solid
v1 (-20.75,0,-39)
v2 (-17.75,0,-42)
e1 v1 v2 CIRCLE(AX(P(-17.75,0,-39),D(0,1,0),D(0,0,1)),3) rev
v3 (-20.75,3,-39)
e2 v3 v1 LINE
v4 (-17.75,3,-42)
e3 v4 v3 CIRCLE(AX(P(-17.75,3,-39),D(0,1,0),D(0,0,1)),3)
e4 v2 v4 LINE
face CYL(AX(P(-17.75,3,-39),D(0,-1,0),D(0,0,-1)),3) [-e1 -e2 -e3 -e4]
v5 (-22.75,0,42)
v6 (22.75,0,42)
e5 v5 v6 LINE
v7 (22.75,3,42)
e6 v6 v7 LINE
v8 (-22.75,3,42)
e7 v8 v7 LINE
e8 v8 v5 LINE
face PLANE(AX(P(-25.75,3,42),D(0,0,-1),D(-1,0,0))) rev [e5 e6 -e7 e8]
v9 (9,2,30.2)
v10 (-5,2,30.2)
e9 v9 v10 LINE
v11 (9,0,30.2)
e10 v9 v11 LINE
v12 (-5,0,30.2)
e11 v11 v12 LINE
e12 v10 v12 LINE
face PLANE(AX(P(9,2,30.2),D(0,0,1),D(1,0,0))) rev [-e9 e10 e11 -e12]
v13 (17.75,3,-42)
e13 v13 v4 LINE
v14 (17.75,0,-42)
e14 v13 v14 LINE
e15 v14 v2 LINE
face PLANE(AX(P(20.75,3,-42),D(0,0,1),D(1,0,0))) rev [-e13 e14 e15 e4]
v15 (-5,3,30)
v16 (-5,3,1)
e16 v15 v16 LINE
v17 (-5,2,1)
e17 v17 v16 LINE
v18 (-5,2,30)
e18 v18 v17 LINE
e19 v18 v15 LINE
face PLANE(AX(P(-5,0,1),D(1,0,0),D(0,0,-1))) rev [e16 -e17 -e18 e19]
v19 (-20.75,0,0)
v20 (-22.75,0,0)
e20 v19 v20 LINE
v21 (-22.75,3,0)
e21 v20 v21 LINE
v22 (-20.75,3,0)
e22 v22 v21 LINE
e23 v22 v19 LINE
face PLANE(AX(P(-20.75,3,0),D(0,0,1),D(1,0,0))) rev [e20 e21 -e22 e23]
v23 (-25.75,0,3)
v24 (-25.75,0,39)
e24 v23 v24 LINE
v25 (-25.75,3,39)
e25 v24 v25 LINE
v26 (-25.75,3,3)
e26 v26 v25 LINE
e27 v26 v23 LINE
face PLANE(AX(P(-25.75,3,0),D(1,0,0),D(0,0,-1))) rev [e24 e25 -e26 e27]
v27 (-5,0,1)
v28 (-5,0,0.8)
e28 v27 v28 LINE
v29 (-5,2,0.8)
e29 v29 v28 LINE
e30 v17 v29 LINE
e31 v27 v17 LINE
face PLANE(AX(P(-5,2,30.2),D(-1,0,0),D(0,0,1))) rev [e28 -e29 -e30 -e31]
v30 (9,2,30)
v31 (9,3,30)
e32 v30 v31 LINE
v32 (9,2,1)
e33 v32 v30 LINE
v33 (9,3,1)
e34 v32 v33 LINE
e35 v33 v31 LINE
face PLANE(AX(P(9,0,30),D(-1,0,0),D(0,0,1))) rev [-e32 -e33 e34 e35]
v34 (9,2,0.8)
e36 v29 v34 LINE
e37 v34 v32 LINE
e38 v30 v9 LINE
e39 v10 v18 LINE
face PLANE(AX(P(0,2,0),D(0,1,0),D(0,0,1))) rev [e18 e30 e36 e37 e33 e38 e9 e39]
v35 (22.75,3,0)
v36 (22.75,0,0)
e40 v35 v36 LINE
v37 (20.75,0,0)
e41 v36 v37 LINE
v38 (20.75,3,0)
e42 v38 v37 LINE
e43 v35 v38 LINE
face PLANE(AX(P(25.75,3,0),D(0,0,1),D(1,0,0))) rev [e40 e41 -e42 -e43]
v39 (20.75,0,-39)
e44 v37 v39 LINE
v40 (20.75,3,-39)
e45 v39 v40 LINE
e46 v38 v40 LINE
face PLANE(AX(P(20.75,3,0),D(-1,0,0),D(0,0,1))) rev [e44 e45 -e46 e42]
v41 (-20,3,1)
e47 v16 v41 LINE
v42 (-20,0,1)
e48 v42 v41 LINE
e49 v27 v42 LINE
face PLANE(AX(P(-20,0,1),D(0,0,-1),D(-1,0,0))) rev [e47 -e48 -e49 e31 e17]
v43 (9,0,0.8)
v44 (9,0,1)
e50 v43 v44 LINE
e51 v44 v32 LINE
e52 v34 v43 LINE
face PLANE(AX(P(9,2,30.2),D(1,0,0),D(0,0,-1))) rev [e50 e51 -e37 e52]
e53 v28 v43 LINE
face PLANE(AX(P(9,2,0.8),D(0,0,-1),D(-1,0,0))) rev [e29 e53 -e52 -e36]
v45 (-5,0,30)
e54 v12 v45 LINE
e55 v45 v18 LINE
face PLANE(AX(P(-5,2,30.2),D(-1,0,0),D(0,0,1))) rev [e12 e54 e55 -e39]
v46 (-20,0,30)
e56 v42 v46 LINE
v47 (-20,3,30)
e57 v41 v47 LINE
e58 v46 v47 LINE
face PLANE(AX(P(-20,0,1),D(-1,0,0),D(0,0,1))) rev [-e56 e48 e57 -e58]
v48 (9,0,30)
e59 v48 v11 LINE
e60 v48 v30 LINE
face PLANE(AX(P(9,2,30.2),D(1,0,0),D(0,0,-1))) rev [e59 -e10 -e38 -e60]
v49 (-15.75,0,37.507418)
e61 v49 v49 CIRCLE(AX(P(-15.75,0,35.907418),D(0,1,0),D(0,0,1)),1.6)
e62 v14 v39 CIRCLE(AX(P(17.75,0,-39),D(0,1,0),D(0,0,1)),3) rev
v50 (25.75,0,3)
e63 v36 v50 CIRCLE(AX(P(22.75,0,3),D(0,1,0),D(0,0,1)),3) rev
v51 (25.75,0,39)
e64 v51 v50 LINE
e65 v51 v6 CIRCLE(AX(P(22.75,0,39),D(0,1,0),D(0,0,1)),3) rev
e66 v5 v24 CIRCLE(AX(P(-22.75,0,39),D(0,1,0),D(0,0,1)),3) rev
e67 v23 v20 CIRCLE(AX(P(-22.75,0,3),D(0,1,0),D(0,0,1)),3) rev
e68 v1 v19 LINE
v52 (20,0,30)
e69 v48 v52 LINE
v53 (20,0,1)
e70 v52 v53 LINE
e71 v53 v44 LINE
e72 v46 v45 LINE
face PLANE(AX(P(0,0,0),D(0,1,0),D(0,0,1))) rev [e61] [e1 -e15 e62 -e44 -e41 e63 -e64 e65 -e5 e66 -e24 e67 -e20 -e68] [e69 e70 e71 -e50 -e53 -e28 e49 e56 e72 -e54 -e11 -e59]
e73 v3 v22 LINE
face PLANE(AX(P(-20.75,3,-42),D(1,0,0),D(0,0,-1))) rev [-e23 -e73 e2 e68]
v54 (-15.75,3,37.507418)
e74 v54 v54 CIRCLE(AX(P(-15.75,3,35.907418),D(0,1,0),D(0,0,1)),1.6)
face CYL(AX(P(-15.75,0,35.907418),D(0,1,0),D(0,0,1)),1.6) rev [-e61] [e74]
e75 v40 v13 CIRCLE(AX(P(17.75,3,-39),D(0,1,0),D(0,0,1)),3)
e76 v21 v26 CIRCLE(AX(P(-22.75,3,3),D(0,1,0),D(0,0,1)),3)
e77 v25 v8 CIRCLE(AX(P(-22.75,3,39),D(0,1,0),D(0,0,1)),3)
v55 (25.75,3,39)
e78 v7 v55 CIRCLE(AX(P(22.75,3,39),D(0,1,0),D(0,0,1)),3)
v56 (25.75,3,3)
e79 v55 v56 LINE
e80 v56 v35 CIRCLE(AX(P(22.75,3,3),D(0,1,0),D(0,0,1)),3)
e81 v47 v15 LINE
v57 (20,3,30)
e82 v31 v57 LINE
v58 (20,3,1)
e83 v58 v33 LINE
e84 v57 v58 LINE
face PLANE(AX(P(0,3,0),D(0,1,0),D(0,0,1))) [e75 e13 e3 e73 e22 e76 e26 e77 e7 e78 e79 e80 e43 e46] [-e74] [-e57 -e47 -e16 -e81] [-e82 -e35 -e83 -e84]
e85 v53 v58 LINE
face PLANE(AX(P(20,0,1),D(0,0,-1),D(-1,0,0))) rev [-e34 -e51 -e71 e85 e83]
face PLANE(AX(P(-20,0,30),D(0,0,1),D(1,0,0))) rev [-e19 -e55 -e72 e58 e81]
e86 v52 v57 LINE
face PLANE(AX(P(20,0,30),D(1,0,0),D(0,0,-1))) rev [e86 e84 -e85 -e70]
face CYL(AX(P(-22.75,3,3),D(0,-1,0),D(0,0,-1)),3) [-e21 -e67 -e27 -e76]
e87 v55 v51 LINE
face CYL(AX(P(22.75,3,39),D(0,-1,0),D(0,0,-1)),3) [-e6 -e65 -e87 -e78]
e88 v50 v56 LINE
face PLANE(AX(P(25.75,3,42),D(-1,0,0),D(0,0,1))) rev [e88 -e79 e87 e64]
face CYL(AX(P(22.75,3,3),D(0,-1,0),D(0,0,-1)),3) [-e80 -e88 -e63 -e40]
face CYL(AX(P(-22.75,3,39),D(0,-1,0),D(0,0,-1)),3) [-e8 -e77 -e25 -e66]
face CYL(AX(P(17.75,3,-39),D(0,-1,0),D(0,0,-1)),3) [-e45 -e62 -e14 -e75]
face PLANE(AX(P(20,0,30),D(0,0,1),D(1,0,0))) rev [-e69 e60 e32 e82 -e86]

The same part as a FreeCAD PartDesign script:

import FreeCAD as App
import Part
import Sketcher


def edges_at(feature, points):
    """Names of the edges that pass closest to the given points."""
    edges = feature.Shape.Edges
    near = lambda p: min(range(len(edges)), key=lambda i: edges[i].distToShape(Part.Vertex(*p))[0])
    return sorted({f"Edge{near(p) + 1}" for p in points})

doc = App.newDocument("Part")
body = doc.addObject("PartDesign::Body", "Body")

sketch1 = body.newObject("Sketcher::SketchObject", "Sketch")
sketch1.AttachmentSupport = (doc.getObject("XZ_Plane"), [""])
sketch1.MapMode = "FlatFace"
sketch1.addGeometry([
    Part.LineSegment(App.Vector(-20.75, -42, 0), App.Vector(-20.75, 0, 0)),
    Part.LineSegment(App.Vector(-20.75, 0, 0), App.Vector(-25.75, 0, 0)),
    Part.LineSegment(App.Vector(-25.75, 0, 0), App.Vector(-25.75, 42, 0)),
    Part.LineSegment(App.Vector(-25.75, 42, 0), App.Vector(25.75, 42, 0)),
    Part.LineSegment(App.Vector(25.75, 42, 0), App.Vector(25.75, 0, 0)),
    Part.LineSegment(App.Vector(25.75, 0, 0), App.Vector(20.75, 0, 0)),
    Part.LineSegment(App.Vector(20.75, 0, 0), App.Vector(20.75, -42, 0)),
    Part.LineSegment(App.Vector(20.75, -42, 0), App.Vector(-20.75, -42, 0)),
], False)
sketch1.addConstraint([
    Sketcher.Constraint("Coincident", 0, 2, 1, 1),
    Sketcher.Constraint("Coincident", 1, 2, 2, 1),
    Sketcher.Constraint("Coincident", 2, 2, 3, 1),
    Sketcher.Constraint("Coincident", 3, 2, 4, 1),
    Sketcher.Constraint("Coincident", 4, 2, 5, 1),
    Sketcher.Constraint("Coincident", 5, 2, 6, 1),
    Sketcher.Constraint("Coincident", 6, 2, 7, 1),
    Sketcher.Constraint("Coincident", 7, 2, 0, 1),
    Sketcher.Constraint("Vertical", 0),
    Sketcher.Constraint("Horizontal", 1),
    Sketcher.Constraint("Vertical", 2),
    Sketcher.Constraint("Horizontal", 3),
    Sketcher.Constraint("Vertical", 4),
    Sketcher.Constraint("Horizontal", 5),
    Sketcher.Constraint("Vertical", 6),
    Sketcher.Constraint("Horizontal", 7),
    Sketcher.Constraint("Symmetric", 1, 2, 4, 2, -1, 1),
    Sketcher.Constraint("Symmetric", 0, 2, 5, 2, -2),
    Sketcher.Constraint("Equal", 0, 2),
    Sketcher.Constraint("DistanceX", 1, 2, 1, 1, 5.0),
    Sketcher.Constraint("DistanceY", 0, 1, 0, 2, 42.0),
    Sketcher.Constraint("DistanceX", 3, 1, 3, 2, 51.5),
])
pad1 = body.newObject("PartDesign::Pad", "Pad")
pad1.Profile = sketch1
pad1.Length = 3
pad1.Reversed = True
doc.recompute()

fillet = body.newObject("PartDesign::Fillet", "Fillet")
fillet.Base = (pad1, edges_at(pad1, [
    (20.75, 1.5, -42),
    (25.75, 1.5, 0),
    (25.75, 1.5, 42),
    (-25.75, 1.5, 42),
    (-25.75, 1.5, 0),
    (-20.75, 1.5, -42),
]))
fillet.Radius = 3

sketch2 = body.newObject("Sketcher::SketchObject", "Sketch001")
sketch2.AttachmentSupport = (doc.getObject("XZ_Plane"), [""])
sketch2.MapMode = "FlatFace"
sketch2.AttachmentOffset = App.Placement(App.Vector(0, 0, -3), App.Rotation())
sketch2.addGeometry([
    Part.Circle(App.Vector(-15.75, 35.907418, 0), App.Vector(0, 0, 1), 1.6),
    Part.LineSegment(App.Vector(-20, 1, 0), App.Vector(-20, 30, 0)),
    Part.LineSegment(App.Vector(-20, 30, 0), App.Vector(-5, 30, 0)),
    Part.LineSegment(App.Vector(-5, 30, 0), App.Vector(-5, 1, 0)),
    Part.LineSegment(App.Vector(-5, 1, 0), App.Vector(-20, 1, 0)),
    Part.LineSegment(App.Vector(9, 1, 0), App.Vector(9, 30, 0)),
    Part.LineSegment(App.Vector(9, 30, 0), App.Vector(20, 30, 0)),
    Part.LineSegment(App.Vector(20, 30, 0), App.Vector(20, 1, 0)),
    Part.LineSegment(App.Vector(20, 1, 0), App.Vector(9, 1, 0)),
], False)
sketch2.addConstraint([
    Sketcher.Constraint("Coincident", 1, 2, 2, 1),
    Sketcher.Constraint("Coincident", 2, 2, 3, 1),
    Sketcher.Constraint("Coincident", 3, 2, 4, 1),
    Sketcher.Constraint("Coincident", 4, 2, 1, 1),
    Sketcher.Constraint("Coincident", 5, 2, 6, 1),
    Sketcher.Constraint("Coincident", 6, 2, 7, 1),
    Sketcher.Constraint("Coincident", 7, 2, 8, 1),
    Sketcher.Constraint("Coincident", 8, 2, 5, 1),
    Sketcher.Constraint("Vertical", 1),
    Sketcher.Constraint("Horizontal", 2),
    Sketcher.Constraint("Vertical", 3),
    Sketcher.Constraint("Horizontal", 4),
    Sketcher.Constraint("Vertical", 5),
    Sketcher.Constraint("Horizontal", 6),
    Sketcher.Constraint("Vertical", 7),
    Sketcher.Constraint("Horizontal", 8),
    Sketcher.Constraint("Symmetric", 1, 2, 6, 2, -2),
    Sketcher.Constraint("Horizontal", 4, 2, 7, 2),
    Sketcher.Constraint("Diameter", 0, 3.2),
    Sketcher.Constraint("DistanceX", 2, 1, 2, 2, 15.0),
    Sketcher.Constraint("DistanceX", 6, 1, 6, 2, 11.0),
    Sketcher.Constraint("DistanceY", 1, 1, 1, 2, 29.0),
    Sketcher.Constraint("DistanceX", 1, 2, -1, 1, 20.0),
    Sketcher.Constraint("DistanceY", -1, 1, 1, 2, 30.0),
    Sketcher.Constraint("DistanceX", 0, 3, -1, 1, 15.75),
    Sketcher.Constraint("DistanceY", -1, 1, 0, 3, 35.907418),
])
pocket1 = body.newObject("PartDesign::Pocket", "Pocket")
pocket1.Profile = sketch2
pocket1.Length = 3
pocket1.Reversed = True

sketch3 = body.newObject("Sketcher::SketchObject", "Sketch002")
sketch3.AttachmentSupport = (doc.getObject("XZ_Plane"), [""])
sketch3.MapMode = "FlatFace"
sketch3.addGeometry([
    Part.LineSegment(App.Vector(-5, 30.2, 0), App.Vector(-5, 0.8, 0)),
    Part.LineSegment(App.Vector(-5, 0.8, 0), App.Vector(9, 0.8, 0)),
    Part.LineSegment(App.Vector(9, 0.8, 0), App.Vector(9, 30.2, 0)),
    Part.LineSegment(App.Vector(9, 30.2, 0), App.Vector(-5, 30.2, 0)),
], False)
sketch3.addConstraint([
    Sketcher.Constraint("Coincident", 0, 2, 1, 1),
    Sketcher.Constraint("Coincident", 1, 2, 2, 1),
    Sketcher.Constraint("Coincident", 2, 2, 3, 1),
    Sketcher.Constraint("Coincident", 3, 2, 0, 1),
    Sketcher.Constraint("Vertical", 0),
    Sketcher.Constraint("Horizontal", 1),
    Sketcher.Constraint("Vertical", 2),
    Sketcher.Constraint("Horizontal", 3),
    Sketcher.Constraint("DistanceX", 1, 1, 1, 2, 14.0),
    Sketcher.Constraint("DistanceY", 0, 2, 0, 1, 29.4),
    Sketcher.Constraint("DistanceX", 0, 2, -1, 1, 5.0),
    Sketcher.Constraint("DistanceY", -1, 1, 0, 2, 0.8),
])
pocket2 = body.newObject("PartDesign::Pocket", "Pocket001")
pocket2.Profile = sketch3
pocket2.Length = 2

doc.recompute()
